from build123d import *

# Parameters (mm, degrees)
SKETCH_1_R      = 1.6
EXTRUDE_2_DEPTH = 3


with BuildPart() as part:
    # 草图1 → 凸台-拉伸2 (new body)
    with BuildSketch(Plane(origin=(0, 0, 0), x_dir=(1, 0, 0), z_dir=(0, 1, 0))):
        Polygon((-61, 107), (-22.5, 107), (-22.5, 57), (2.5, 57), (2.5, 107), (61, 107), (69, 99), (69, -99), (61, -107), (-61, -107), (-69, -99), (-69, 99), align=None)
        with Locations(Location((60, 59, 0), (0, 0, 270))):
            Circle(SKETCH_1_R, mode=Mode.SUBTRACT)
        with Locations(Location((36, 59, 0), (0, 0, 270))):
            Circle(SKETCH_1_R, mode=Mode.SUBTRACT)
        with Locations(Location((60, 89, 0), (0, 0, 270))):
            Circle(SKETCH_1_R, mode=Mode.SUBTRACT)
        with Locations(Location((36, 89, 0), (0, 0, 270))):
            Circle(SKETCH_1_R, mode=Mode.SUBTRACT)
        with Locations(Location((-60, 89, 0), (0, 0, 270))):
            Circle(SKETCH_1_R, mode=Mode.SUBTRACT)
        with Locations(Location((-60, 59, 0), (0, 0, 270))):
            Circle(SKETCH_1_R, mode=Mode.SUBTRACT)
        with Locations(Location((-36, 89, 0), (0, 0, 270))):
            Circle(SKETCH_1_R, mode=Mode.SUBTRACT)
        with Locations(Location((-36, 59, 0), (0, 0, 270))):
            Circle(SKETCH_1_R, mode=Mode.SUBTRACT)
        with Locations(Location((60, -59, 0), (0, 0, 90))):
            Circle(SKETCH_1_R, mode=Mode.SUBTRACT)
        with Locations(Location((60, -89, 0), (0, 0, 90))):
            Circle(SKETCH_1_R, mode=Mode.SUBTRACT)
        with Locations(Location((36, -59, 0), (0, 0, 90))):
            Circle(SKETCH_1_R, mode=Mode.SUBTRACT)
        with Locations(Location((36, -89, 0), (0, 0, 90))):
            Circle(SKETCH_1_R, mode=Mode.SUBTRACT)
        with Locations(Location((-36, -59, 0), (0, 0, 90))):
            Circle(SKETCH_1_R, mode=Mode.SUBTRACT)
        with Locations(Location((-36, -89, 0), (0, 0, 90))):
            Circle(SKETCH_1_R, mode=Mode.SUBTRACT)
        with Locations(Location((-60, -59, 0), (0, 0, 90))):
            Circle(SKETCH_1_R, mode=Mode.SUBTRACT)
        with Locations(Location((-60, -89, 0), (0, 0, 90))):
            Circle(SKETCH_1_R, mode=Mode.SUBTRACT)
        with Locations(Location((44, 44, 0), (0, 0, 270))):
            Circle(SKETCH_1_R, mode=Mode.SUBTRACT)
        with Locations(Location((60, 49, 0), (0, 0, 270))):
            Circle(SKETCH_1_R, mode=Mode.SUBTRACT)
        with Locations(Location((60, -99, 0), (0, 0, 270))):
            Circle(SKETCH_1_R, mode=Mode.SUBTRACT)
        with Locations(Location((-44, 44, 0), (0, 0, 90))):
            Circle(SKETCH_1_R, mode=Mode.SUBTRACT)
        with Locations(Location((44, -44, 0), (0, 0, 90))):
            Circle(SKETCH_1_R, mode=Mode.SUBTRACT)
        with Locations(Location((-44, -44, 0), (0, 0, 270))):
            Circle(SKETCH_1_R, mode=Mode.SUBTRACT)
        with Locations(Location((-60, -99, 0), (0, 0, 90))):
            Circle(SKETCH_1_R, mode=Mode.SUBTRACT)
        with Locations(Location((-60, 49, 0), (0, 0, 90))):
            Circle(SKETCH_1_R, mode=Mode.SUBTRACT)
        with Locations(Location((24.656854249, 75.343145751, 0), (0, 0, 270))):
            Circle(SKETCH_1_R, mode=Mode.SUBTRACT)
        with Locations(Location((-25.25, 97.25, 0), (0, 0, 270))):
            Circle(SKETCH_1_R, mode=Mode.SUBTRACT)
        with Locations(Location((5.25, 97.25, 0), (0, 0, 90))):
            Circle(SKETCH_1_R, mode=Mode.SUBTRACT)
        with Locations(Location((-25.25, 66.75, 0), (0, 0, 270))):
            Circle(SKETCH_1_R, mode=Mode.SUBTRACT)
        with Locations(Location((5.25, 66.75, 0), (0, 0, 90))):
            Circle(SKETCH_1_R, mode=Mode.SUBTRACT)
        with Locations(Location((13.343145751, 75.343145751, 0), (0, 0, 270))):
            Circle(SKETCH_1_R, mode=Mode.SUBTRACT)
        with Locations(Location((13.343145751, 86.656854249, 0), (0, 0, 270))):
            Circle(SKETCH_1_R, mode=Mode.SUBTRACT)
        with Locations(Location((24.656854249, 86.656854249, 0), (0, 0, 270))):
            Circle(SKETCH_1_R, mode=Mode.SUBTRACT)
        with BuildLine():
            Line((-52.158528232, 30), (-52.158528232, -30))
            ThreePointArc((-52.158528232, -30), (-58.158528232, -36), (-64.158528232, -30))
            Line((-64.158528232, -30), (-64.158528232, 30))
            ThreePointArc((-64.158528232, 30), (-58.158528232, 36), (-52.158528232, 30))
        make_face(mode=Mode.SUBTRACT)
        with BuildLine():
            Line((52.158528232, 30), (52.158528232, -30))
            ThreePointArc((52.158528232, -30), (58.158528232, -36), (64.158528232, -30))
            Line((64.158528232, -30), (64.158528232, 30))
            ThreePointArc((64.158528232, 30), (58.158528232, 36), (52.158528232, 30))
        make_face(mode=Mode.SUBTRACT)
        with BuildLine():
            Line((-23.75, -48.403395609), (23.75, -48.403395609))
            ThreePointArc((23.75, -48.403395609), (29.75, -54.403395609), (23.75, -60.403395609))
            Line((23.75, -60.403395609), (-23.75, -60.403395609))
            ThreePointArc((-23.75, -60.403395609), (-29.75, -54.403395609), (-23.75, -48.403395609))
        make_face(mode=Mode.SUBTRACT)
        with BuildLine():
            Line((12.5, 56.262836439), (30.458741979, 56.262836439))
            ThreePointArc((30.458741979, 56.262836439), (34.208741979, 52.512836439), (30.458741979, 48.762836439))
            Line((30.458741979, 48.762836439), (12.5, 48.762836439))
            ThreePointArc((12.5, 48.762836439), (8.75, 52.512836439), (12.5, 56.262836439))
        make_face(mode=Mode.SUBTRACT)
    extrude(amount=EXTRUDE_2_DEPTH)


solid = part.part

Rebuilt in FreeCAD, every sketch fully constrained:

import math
import FreeCAD as App
import Part
import Sketcher
from FreeCAD import Vector

doc = App.newDocument("Part")
params = doc.addObject("Spreadsheet::Sheet", "Params")
for row, (alias, value) in enumerate([
    ("sketch1_radius", "6 mm"),
    ("sketch1_diameter", "3.2 mm"),
    ("sketch1_width", "122 mm"),
    ("sketch1_width2", "25 mm"),
    ("sketch1_height", "198 mm"),
    ("pad1_length", "3 mm"),
], start=1):
    params.set(f"A{row}", alias)
    params.set(f"B{row}", "=" + value)
    params.setAlias(f"B{row}", alias)

body = doc.addObject("PartDesign::Body", "Body")

sketch1 = body.newObject("Sketcher::SketchObject", "Sketch")
sketch1.AttachmentSupport = (doc.getObject("XZ_Plane"), [""])
sketch1.MapMode = "FlatFace"
sketch1.addGeometry(Part.LineSegment(Vector(-22.5, -107, 0), Vector(-61, -107, 0)), False)
sketch1.addGeometry(Part.LineSegment(Vector(-61, -107, 0), Vector(-69, -99, 0)), False)
sketch1.addGeometry(Part.LineSegment(Vector(-69, -99, 0), Vector(-69, 99, 0)), False)
sketch1.addGeometry(Part.LineSegment(Vector(-69, 99, 0), Vector(-61, 107, 0)), False)
sketch1.addGeometry(Part.LineSegment(Vector(-61, 107, 0), Vector(61, 107, 0)), False)
sketch1.addGeometry(Part.LineSegment(Vector(61, 107, 0), Vector(69, 99, 0)), False)
sketch1.addGeometry(Part.LineSegment(Vector(69, 99, 0), Vector(69, -99, 0)), False)
sketch1.addGeometry(Part.LineSegment(Vector(69, -99, 0), Vector(61, -107, 0)), False)
sketch1.addGeometry(Part.LineSegment(Vector(61, -107, 0), Vector(2.5, -107, 0)), False)
sketch1.addGeometry(Part.LineSegment(Vector(2.5, -107, 0), Vector(2.5, -57, 0)), False)
sketch1.addGeometry(Part.LineSegment(Vector(2.5, -57, 0), Vector(-22.5, -57, 0)), False)
sketch1.addGeometry(Part.LineSegment(Vector(-22.5, -57, 0), Vector(-22.5, -107, 0)), False)
sketch1.addGeometry(Part.Circle(Vector(60, 99, 0), Vector(0, 0, 1), 1.6), False)
sketch1.addGeometry(Part.Circle(Vector(60, 89, 0), Vector(0, 0, 1), 1.6), False)
sketch1.addGeometry(Part.Circle(Vector(36, 89, 0), Vector(0, 0, 1), 1.6), False)
sketch1.addGeometry(Part.Circle(Vector(60, 59, 0), Vector(0, 0, 1), 1.6), False)
sketch1.addGeometry(Part.Circle(Vector(36, 59, 0), Vector(0, 0, 1), 1.6), False)
sketch1.addGeometry(Part.Circle(Vector(44, 44, 0), Vector(0, 0, 1), 1.6), False)
sketch1.addGeometry(Part.LineSegment(Vector(-23.75, 48.403396, 0), Vector(23.75, 48.403396, 0)), False)
sketch1.addGeometry(Part.ArcOfCircle(Part.Circle(Vector(23.75, 54.403396, 0), Vector(0, 0, 1), 6), math.radians(-90), math.radians(90)), False)
sketch1.addGeometry(Part.LineSegment(Vector(23.75, 60.403396, 0), Vector(-23.75, 60.403396, 0)), False)
sketch1.addGeometry(Part.ArcOfCircle(Part.Circle(Vector(-23.75, 54.403396, 0), Vector(0, 0, 1), 6), math.radians(90), math.radians(270)), False)
sketch1.addGeometry(Part.Circle(Vector(-36, 89, 0), Vector(0, 0, 1), 1.6), False)
sketch1.addGeometry(Part.Circle(Vector(-60, 99, 0), Vector(0, 0, 1), 1.6), False)
sketch1.addGeometry(Part.Circle(Vector(-60, 89, 0), Vector(0, 0, 1), 1.6), False)
sketch1.addGeometry(Part.Circle(Vector(-36, 59, 0), Vector(0, 0, 1), 1.6), False)
sketch1.addGeometry(Part.Circle(Vector(-60, 59, 0), Vector(0, 0, 1), 1.6), False)
sketch1.addGeometry(Part.Circle(Vector(-44, 44, 0), Vector(0, 0, 1), 1.6), False)
sketch1.addGeometry(Part.ArcOfCircle(Part.Circle(Vector(58.158528, -30, 0), Vector(0, 0, 1), 6), math.radians(180), math.radians(360)), False)
sketch1.addGeometry(Part.LineSegment(Vector(64.158528, -30, 0), Vector(64.158528, 30, 0)), False)
sketch1.addGeometry(Part.ArcOfCircle(Part.Circle(Vector(58.158528, 30, 0), Vector(0, 0, 1), 6), math.radians(0), math.radians(180)), False)
sketch1.addGeometry(Part.LineSegment(Vector(52.158528, 30, 0), Vector(52.158528, -30, 0)), False)
sketch1.addGeometry(Part.Circle(Vector(44, -44, 0), Vector(0, 0, 1), 1.6), False)
sketch1.addGeometry(Part.Circle(Vector(60, -49, 0), Vector(0, 0, 1), 1.6), False)
sketch1.addGeometry(Part.Circle(Vector(60, -59, 0), Vector(0, 0, 1), 1.6), False)
sketch1.addGeometry(Part.Circle(Vector(36, -59, 0), Vector(0, 0, 1), 1.6), False)
sketch1.addGeometry(Part.Circle(Vector(60, -89, 0), Vector(0, 0, 1), 1.6), False)
sketch1.addGeometry(Part.Circle(Vector(36, -89, 0), Vector(0, 0, 1), 1.6), False)
sketch1.addGeometry(Part.LineSegment(Vector(12.5, -56.262836, 0), Vector(30.458742, -56.262836, 0)), False)
sketch1.addGeometry(Part.ArcOfCircle(Part.Circle(Vector(30.458742, -52.512836, 0), Vector(0, 0, 1), 3.75), math.radians(-90), math.radians(90)), False)
sketch1.addGeometry(Part.LineSegment(Vector(30.458742, -48.762836, 0), Vector(12.5, -48.762836, 0)), False)
sketch1.addGeometry(Part.ArcOfCircle(Part.Circle(Vector(12.5, -52.512836, 0), Vector(0, 0, 1), 3.75), math.radians(90), math.radians(270)), False)
sketch1.addGeometry(Part.Circle(Vector(5.25, -66.75, 0), Vector(0, 0, 1), 1.6), False)
sketch1.addGeometry(Part.Circle(Vector(24.656854, -75.343146, 0), Vector(0, 0, 1), 1.6), False)
sketch1.addGeometry(Part.Circle(Vector(24.656854, -86.656854, 0), Vector(0, 0, 1), 1.6), False)
sketch1.addGeometry(Part.Circle(Vector(13.343146, -75.343146, 0), Vector(0, 0, 1), 1.6), False)
sketch1.addGeometry(Part.Circle(Vector(13.343146, -86.656854, 0), Vector(0, 0, 1), 1.6), False)
sketch1.addGeometry(Part.Circle(Vector(5.25, -97.25, 0), Vector(0, 0, 1), 1.6), False)
sketch1.addGeometry(Part.LineSegment(Vector(-52.158528, -30, 0), Vector(-52.158528, 30, 0)), False)
sketch1.addGeometry(Part.ArcOfCircle(Part.Circle(Vector(-58.158528, 30, 0), Vector(0, 0, 1), 6), math.radians(0), math.radians(180)), False)
sketch1.addGeometry(Part.LineSegment(Vector(-64.158528, 30, 0), Vector(-64.158528, -30, 0)), False)
sketch1.addGeometry(Part.ArcOfCircle(Part.Circle(Vector(-58.158528, -30, 0), Vector(0, 0, 1), 6), math.radians(180), math.radians(360)), False)
sketch1.addGeometry(Part.Circle(Vector(-44, -44, 0), Vector(0, 0, 1), 1.6), False)
sketch1.addGeometry(Part.Circle(Vector(-25.25, -66.75, 0), Vector(0, 0, 1), 1.6), False)
sketch1.addGeometry(Part.Circle(Vector(-25.25, -97.25, 0), Vector(0, 0, 1), 1.6), False)
sketch1.addGeometry(Part.Circle(Vector(-36, -59, 0), Vector(0, 0, 1), 1.6), False)
sketch1.addGeometry(Part.Circle(Vector(-60, -49, 0), Vector(0, 0, 1), 1.6), False)
sketch1.addGeometry(Part.Circle(Vector(-60, -59, 0), Vector(0, 0, 1), 1.6), False)
sketch1.addGeometry(Part.Circle(Vector(-36, -89, 0), Vector(0, 0, 1), 1.6), False)
sketch1.addGeometry(Part.Circle(Vector(-60, -89, 0), Vector(0, 0, 1), 1.6), False)
sketch1.addConstraint(Sketcher.Constraint("Coincident", 0, 2, 1, 1))
sketch1.addConstraint(Sketcher.Constraint("Coincident", 1, 2, 2, 1))
sketch1.addConstraint(Sketcher.Constraint("Coincident", 2, 2, 3, 1))
sketch1.addConstraint(Sketcher.Constraint("Coincident", 3, 2, 4, 1))
sketch1.addConstraint(Sketcher.Constraint("Coincident", 4, 2, 5, 1))
sketch1.addConstraint(Sketcher.Constraint("Coincident", 5, 2, 6, 1))
sketch1.addConstraint(Sketcher.Constraint("Coincident", 6, 2, 7, 1))
sketch1.addConstraint(Sketcher.Constraint("Coincident", 7, 2, 8, 1))
sketch1.addConstraint(Sketcher.Constraint("Coincident", 8, 2, 9, 1))
sketch1.addConstraint(Sketcher.Constraint("Coincident", 9, 2, 10, 1))
sketch1.addConstraint(Sketcher.Constraint("Coincident", 10, 2, 11, 1))
sketch1.addConstraint(Sketcher.Constraint("Coincident", 11, 2, 0, 1))
sketch1.addConstraint(Sketcher.Constraint("Tangent", 18, 2, 19, 1))
sketch1.addConstraint(Sketcher.Constraint("Tangent", 19, 2, 20, 1))
sketch1.addConstraint(Sketcher.Constraint("Tangent", 20, 2, 21, 1))
sketch1.addConstraint(Sketcher.Constraint("Tangent", 21, 2, 18, 1))
sketch1.addConstraint(Sketcher.Constraint("Tangent", 28, 2, 29, 1))
sketch1.addConstraint(Sketcher.Constraint("Tangent", 29, 2, 30, 1))
sketch1.addConstraint(Sketcher.Constraint("Tangent", 30, 2, 31, 1))
sketch1.addConstraint(Sketcher.Constraint("Tangent", 31, 2, 28, 1))
sketch1.addConstraint(Sketcher.Constraint("Tangent", 38, 2, 39, 1))
sketch1.addConstraint(Sketcher.Constraint("Tangent", 39, 2, 40, 1))
sketch1.addConstraint(Sketcher.Constraint("Tangent", 40, 2, 41, 1))
sketch1.addConstraint(Sketcher.Constraint("Tangent", 41, 2, 38, 1))
sketch1.addConstraint(Sketcher.Constraint("Tangent", 48, 2, 49, 1))
sketch1.addConstraint(Sketcher.Constraint("Tangent", 49, 2, 50, 1))
sketch1.addConstraint(Sketcher.Constraint("Tangent", 50, 2, 51, 1))
sketch1.addConstraint(Sketcher.Constraint("Tangent", 51, 2, 48, 1))
sketch1.addConstraint(Sketcher.Constraint("Horizontal", 0))
sketch1.addConstraint(Sketcher.Constraint("Vertical", 2))
sketch1.addConstraint(Sketcher.Constraint("Horizontal", 4))
sketch1.addConstraint(Sketcher.Constraint("Vertical", 6))
sketch1.addConstraint(Sketcher.Constraint("Horizontal", 8))
sketch1.addConstraint(Sketcher.Constraint("Vertical", 9))
sketch1.addConstraint(Sketcher.Constraint("Horizontal", 10))
sketch1.addConstraint(Sketcher.Constraint("Vertical", 11))
sketch1.addConstraint(Sketcher.Constraint("Horizontal", 18))
sketch1.addConstraint(Sketcher.Constraint("Horizontal", 20))
sketch1.addConstraint(Sketcher.Constraint("Vertical", 29))
sketch1.addConstraint(Sketcher.Constraint("Vertical", 31))
sketch1.addConstraint(Sketcher.Constraint("Horizontal", 38))
sketch1.addConstraint(Sketcher.Constraint("Horizontal", 40))
sketch1.addConstraint(Sketcher.Constraint("Vertical", 48))
sketch1.addConstraint(Sketcher.Constraint("Vertical", 50))
sketch1.addConstraint(Sketcher.Constraint("Equal", 12, 13))
sketch1.addConstraint(Sketcher.Constraint("Equal", 13, 14))
sketch1.addConstraint(Sketcher.Constraint("Equal", 14, 15))
sketch1.addConstraint(Sketcher.Constraint("Equal", 15, 16))
sketch1.addConstraint(Sketcher.Constraint("Equal", 16, 17))
sketch1.addConstraint(Sketcher.Constraint("Equal", 17, 22))
sketch1.addConstraint(Sketcher.Constraint("Equal", 22, 23))
sketch1.addConstraint(Sketcher.Constraint("Equal", 23, 24))
sketch1.addConstraint(Sketcher.Constraint("Equal", 24, 25))
sketch1.addConstraint(Sketcher.Constraint("Equal", 25, 26))
sketch1.addConstraint(Sketcher.Constraint("Equal", 26, 27))
sketch1.addConstraint(Sketcher.Constraint("Equal", 21, 28))
sketch1.addConstraint(Sketcher.Constraint("Equal", 27, 32))
sketch1.addConstraint(Sketcher.Constraint("Equal", 32, 33))
sketch1.addConstraint(Sketcher.Constraint("Equal", 33, 34))
sketch1.addConstraint(Sketcher.Constraint("Equal", 34, 35))
sketch1.addConstraint(Sketcher.Constraint("Equal", 35, 36))
sketch1.addConstraint(Sketcher.Constraint("Equal", 36, 37))
sketch1.addConstraint(Sketcher.Constraint("Equal", 37, 42))
sketch1.addConstraint(Sketcher.Constraint("Equal", 42, 43))
sketch1.addConstraint(Sketcher.Constraint("Equal", 43, 44))
sketch1.addConstraint(Sketcher.Constraint("Equal", 44, 45))
sketch1.addConstraint(Sketcher.Constraint("Equal", 45, 46))
sketch1.addConstraint(Sketcher.Constraint("Equal", 46, 47))
sketch1.addConstraint(Sketcher.Constraint("Equal", 30, 49))
sketch1.addConstraint(Sketcher.Constraint("Equal", 47, 52))
sketch1.addConstraint(Sketcher.Constraint("Equal", 52, 53))
sketch1.addConstraint(Sketcher.Constraint("Equal", 53, 54))
sketch1.addConstraint(Sketcher.Constraint("Equal", 54, 55))
sketch1.addConstraint(Sketcher.Constraint("Equal", 55, 56))
sketch1.addConstraint(Sketcher.Constraint("Equal", 56, 57))
sketch1.addConstraint(Sketcher.Constraint("Equal", 57, 58))
sketch1.addConstraint(Sketcher.Constraint("Equal", 58, 59))
sketch1.addConstraint(Sketcher.Constraint("Symmetric", 27, 3, 32, 3, -1, 1))
sketch1.addConstraint(Sketcher.Constraint("Symmetric", 26, 3, 34, 3, -1, 1))
sketch1.addConstraint(Sketcher.Constraint("Symmetric", 25, 3, 35, 3, -1, 1))
sketch1.addConstraint(Sketcher.Constraint("Symmetric", 24, 3, 36, 3, -1, 1))
sketch1.addConstraint(Sketcher.Constraint("Symmetric", 22, 3, 37, 3, -1, 1))
sketch1.addConstraint(Sketcher.Constraint("Symmetric", 28, 3, 49, 3, -1, 1))
sketch1.addConstraint(Sketcher.Constraint("Symmetric", 17, 3, 52, 3, -1, 1))
sketch1.addConstraint(Sketcher.Constraint("Symmetric", 16, 3, 55, 3, -1, 1))
sketch1.addConstraint(Sketcher.Constraint("Symmetric", 15, 3, 57, 3, -1, 1))
sketch1.addConstraint(Sketcher.Constraint("Symmetric", 14, 3, 58, 3, -1, 1))
sketch1.addConstraint(Sketcher.Constraint("Symmetric", 13, 3, 59, 3, -1, 1))
sketch1.addConstraint(Sketcher.Constraint("Symmetric", 0, 2, 4, 2, -1, 1))
sketch1.addConstraint(Sketcher.Constraint("Symmetric", 1, 2, 5, 2, -1, 1))
sketch1.addConstraint(Sketcher.Constraint("Symmetric", 3, 2, 7, 2, -1, 1))
sketch1.addConstraint(Sketcher.Constraint("Symmetric", 14, 3, 22, 3, -2))
sketch1.addConstraint(Sketcher.Constraint("Symmetric", 12, 3, 23, 3, -2))
sketch1.addConstraint(Sketcher.Constraint("Symmetric", 13, 3, 24, 3, -2))
sketch1.addConstraint(Sketcher.Constraint("Symmetric", 16, 3, 25, 3, -2))
sketch1.addConstraint(Sketcher.Constraint("Symmetric", 15, 3, 26, 3, -2))
sketch1.addConstraint(Sketcher.Constraint("Symmetric", 17, 3, 27, 3, -2))
sketch1.addConstraint(Sketcher.Constraint("Symmetric", 33, 3, 56, 3, -2))
sketch1.addConstraint(Sketcher.Constraint("Perpendicular", 1, 3))
sketch1.addConstraint(Sketcher.Constraint("Perpendicular", 5, 7))
sketch1.addConstraint(Sketcher.Constraint("Horizontal", 13, 3, 14, 3))
sketch1.addConstraint(Sketcher.Constraint("Horizontal", 15, 3, 16, 3))
sketch1.addConstraint(Sketcher.Constraint("Horizontal", 43, 3, 45, 3))
sketch1.addConstraint(Sketcher.Constraint("Horizontal", 44, 3, 46, 3))
sketch1.addConstraint(Sketcher.Constraint("Horizontal", 30, 3, 49, 3))
sketch1.addConstraint(Sketcher.Constraint("Horizontal", 28, 3, 51, 3))
sketch1.addConstraint(Sketcher.Constraint("Horizontal", 42, 3, 53, 3))
sketch1.addConstraint(Sketcher.Constraint("Horizontal", 47, 3, 54, 3))
sketch1.addConstraint(Sketcher.Constraint("Horizontal", 23, 3, 2, 2))
sketch1.addConstraint(Sketcher.Constraint("Horizontal", 2, 2, 5, 2))
sketch1.addConstraint(Sketcher.Constraint("Vertical", 12, 3, 13, 3))
sketch1.addConstraint(Sketcher.Constraint("Vertical", 13, 3, 15, 3))
sketch1.addConstraint(Sketcher.Constraint("Vertical", 14, 3, 16, 3))
sketch1.addConstraint(Sketcher.Constraint("Vertical", 15, 3, 33, 3))
sketch1.addConstraint(Sketcher.Constraint("Vertical", 43, 3, 44, 3))
sketch1.addConstraint(Sketcher.Constraint("Vertical", 45, 3, 46, 3))
sketch1.addConstraint(Sketcher.Constraint("Vertical", 42, 3, 47, 3))
sketch1.addConstraint(Sketcher.Constraint("Vertical", 53, 3, 54, 3))
sketch1.addConstraint(Sketcher.Constraint("Vertical", 0, 2, 3, 2))
sketch1.addConstraint(Sketcher.Constraint("Radius", 19, 6.0))
sketch1.addConstraint(Sketcher.Constraint("Diameter", 12, 3.2))
sketch1.addConstraint(Sketcher.Constraint("DistanceX", 4, 1, 4, 2, 122.0))
sketch1.addConstraint(Sketcher.Constraint("DistanceX", 10, 2, 10, 1, 25.0))
sketch1.addConstraint(Sketcher.Constraint("DistanceY", 2, 1, 2, 2, 198.0))
sketch1.addConstraint(Sketcher.Constraint("DistanceY", 9, 1, 9, 2, 50.0))
sketch1.addConstraint(Sketcher.Constraint("DistanceY", 29, 1, 29, 2, 60.0))
sketch1.addConstraint(Sketcher.Constraint("Radius", 39, 3.75))
sketch1.addConstraint(Sketcher.Constraint("DistanceX", 0, 2, 0, 1, 38.5))
sketch1.addConstraint(Sketcher.Constraint("DistanceX", 18, 1, 18, 2, 47.5))
sketch1.addConstraint(Sketcher.Constraint("DistanceX", -1, 1, 12, 3, 60.0))
sketch1.addConstraint(Sketcher.Constraint("DistanceY", -1, 1, 13, 3, 89.0))
sketch1.addConstraint(Sketcher.Constraint("DistanceX", -1, 1, 14, 3, 36.0))
sketch1.addConstraint(Sketcher.Constraint("DistanceY", -1, 1, 15, 3, 59.0))
sketch1.addConstraint(Sketcher.Constraint("DistanceX", -1, 1, 17, 3, 44.0))
sketch1.addConstraint(Sketcher.Constraint("DistanceY", -1, 1, 17, 3, 44.0))
sketch1.addConstraint(Sketcher.Constraint("DistanceY", 33, 3, -1, 1, 49.0))
sketch1.addConstraint(Sketcher.Constraint("DistanceY", 0, 2, -1, 1, 107.0))
sketch1.addConstraint(Sketcher.Constraint("DistanceX", -1, 1, 41, 3, 12.5))
sketch1.addConstraint(Sketcher.Constraint("DistanceX", -1, 1, 19, 3, 23.75))
sketch1.addConstraint(Sketcher.Constraint("DistanceX", -1, 1, 42, 3, 5.25))
sketch1.addConstraint(Sketcher.Constraint("DistanceY", 42, 3, -1, 1, 66.75))
sketch1.addConstraint(Sketcher.Constraint("DistanceY", 47, 3, -1, 1, 97.25))
sketch1.addConstraint(Sketcher.Constraint("DistanceX", 53, 3, -1, 1, 25.25))
sketch1.addConstraint(Sketcher.Constraint("DistanceX", 38, 1, 38, 2, 17.958742))
sketch1.addConstraint(Sketcher.Constraint("DistanceX", -1, 1, 28, 3, 58.158528))
sketch1.addConstraint(Sketcher.Constraint("DistanceY", -1, 1, 19, 3, 54.403396))
sketch1.addConstraint(Sketcher.Constraint("DistanceY", 39, 3, -1, 1, 52.512836))
sketch1.addConstraint(Sketcher.Constraint("DistanceX", -1, 1, 43, 3, 24.656854))
sketch1.addConstraint(Sketcher.Constraint("DistanceY", 43, 3, -1, 1, 75.343146))
sketch1.addConstraint(Sketcher.Constraint("DistanceY", 44, 3, -1, 1, 86.656854))
sketch1.addConstraint(Sketcher.Constraint("DistanceX", -1, 1, 45, 3, 13.343146))
sketch1.setExpression("Constraints[119]", "Params.sketch1_radius")
sketch1.setExpression("Constraints[120]", "Params.sketch1_diameter")
sketch1.setExpression("Constraints[121]", "Params.sketch1_width")
sketch1.setExpression("Constraints[122]", "Params.sketch1_width2")
sketch1.setExpression("Constraints[123]", "Params.sketch1_height")
pad1 = body.newObject("PartDesign::Pad", "Pad")
pad1.Profile = sketch1
pad1.setExpression("Length", "Params.pad1_length")
pad1.Reversed = True

doc.recompute()
